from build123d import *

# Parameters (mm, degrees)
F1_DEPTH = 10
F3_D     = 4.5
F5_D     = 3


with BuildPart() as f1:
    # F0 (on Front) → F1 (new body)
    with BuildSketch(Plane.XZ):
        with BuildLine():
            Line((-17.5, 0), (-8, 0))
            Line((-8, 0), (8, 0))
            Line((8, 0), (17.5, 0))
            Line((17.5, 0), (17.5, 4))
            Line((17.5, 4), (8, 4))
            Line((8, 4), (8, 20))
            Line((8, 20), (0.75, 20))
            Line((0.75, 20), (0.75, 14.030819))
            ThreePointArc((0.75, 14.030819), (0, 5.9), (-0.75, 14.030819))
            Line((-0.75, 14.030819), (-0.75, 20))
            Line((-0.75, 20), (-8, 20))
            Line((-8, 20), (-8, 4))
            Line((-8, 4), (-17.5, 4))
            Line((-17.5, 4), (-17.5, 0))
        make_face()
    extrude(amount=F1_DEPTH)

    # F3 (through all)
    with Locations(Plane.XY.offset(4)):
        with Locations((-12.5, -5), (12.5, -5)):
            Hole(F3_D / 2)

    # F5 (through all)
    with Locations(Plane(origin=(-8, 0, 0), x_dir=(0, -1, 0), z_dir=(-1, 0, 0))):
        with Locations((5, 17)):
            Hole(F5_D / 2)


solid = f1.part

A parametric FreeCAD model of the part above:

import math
import FreeCAD as App
import Part
import Sketcher

V = App.Vector
Q = App.Units.Quantity

doc = App.newDocument("Part")
body = doc.addObject("PartDesign::Body", "Body")

# Sketch on XZ plane
sketch1 = doc.addObject("Sketcher::SketchObject", "Sketch")
body.addObject(sketch1)
sketch1.AttachmentSupport = (doc.XZ_Plane, [""])
sketch1.MapMode = "FlatFace"
sketch1.addGeometry([
    Part.LineSegment(V(-17.5, 0, 0), V(17.5, 0, 0)),  # 0
    Part.LineSegment(V(17.5, 0, 0), V(17.5, 4, 0)),  # 1
    Part.LineSegment(V(17.5, 4, 0), V(8, 4, 0)),  # 2
    Part.LineSegment(V(8, 4, 0), V(8, 20, 0)),  # 3
    Part.LineSegment(V(8, 20, 0), V(0.75, 20, 0)),  # 4
    Part.LineSegment(V(0.75, 20, 0), V(0.75, 14.030819, 0)),  # 5
    Part.ArcOfCircle(Part.Circle(V(0, 10, 0), V(0, 0, 1), 4.1), math.radians(100.540286), math.radians(439.459714)),  # 6
    Part.LineSegment(V(-0.75, 14.030819, 0), V(-0.75, 20, 0)),  # 7
    Part.LineSegment(V(-0.75, 20, 0), V(-8, 20, 0)),  # 8
    Part.LineSegment(V(-8, 20, 0), V(-8, 4, 0)),  # 9
    Part.LineSegment(V(-8, 4, 0), V(-17.5, 4, 0)),  # 10
    Part.LineSegment(V(-17.5, 4, 0), V(-17.5, 0, 0)),  # 11
], False)
sketch1.addConstraint([
    Sketcher.Constraint("Coincident", 0, 2, 1, 1),
    Sketcher.Constraint("Coincident", 1, 2, 2, 1),
    Sketcher.Constraint("Coincident", 2, 2, 3, 1),
    Sketcher.Constraint("Coincident", 3, 2, 4, 1),
    Sketcher.Constraint("Coincident", 4, 2, 5, 1),
    Sketcher.Constraint("Coincident", 5, 2, 6, 2),
    Sketcher.Constraint("Coincident", 6, 1, 7, 1),
    Sketcher.Constraint("Coincident", 7, 2, 8, 1),
    Sketcher.Constraint("Coincident", 8, 2, 9, 1),
    Sketcher.Constraint("Coincident", 9, 2, 10, 1),
    Sketcher.Constraint("Coincident", 10, 2, 11, 1),
    Sketcher.Constraint("Coincident", 11, 2, 0, 1),
    Sketcher.Constraint("Horizontal", 0),
    Sketcher.Constraint("Vertical", 1),
    Sketcher.Constraint("Horizontal", 2),
    Sketcher.Constraint("Vertical", 3),
    Sketcher.Constraint("Horizontal", 4),
    Sketcher.Constraint("Vertical", 5),
    Sketcher.Constraint("Vertical", 7),
    Sketcher.Constraint("Horizontal", 8),
    Sketcher.Constraint("Vertical", 9),
    Sketcher.Constraint("Horizontal", 10),
    Sketcher.Constraint("Vertical", 11),
    Sketcher.Constraint("Symmetric", 0, 2, 11, 2, -1, 1),
    Sketcher.Constraint("Symmetric", 5, 2, 6, 1, -2),
    Sketcher.Constraint("Symmetric", 3, 2, 8, 2, -2),
    Sketcher.Constraint("Horizontal", 2, 2, 9, 2),
    Sketcher.Constraint("Radius", 6, Q("4.1 mm")),
    Sketcher.Constraint("DistanceX", 0, 1, 0, 2, Q("35 mm")),
    Sketcher.Constraint("DistanceY", 1, 1, 1, 2, Q("4 mm")),
    Sketcher.Constraint("DistanceY", 3, 1, 3, 2, Q("16 mm")),
    Sketcher.Constraint("DistanceX", 2, 2, 2, 1, Q("9.5 mm")),
    Sketcher.Constraint("DistanceY", -1, 1, 6, 3, Q("10 mm")),
    Sketcher.Constraint("DistanceX", 4, 2, 4, 1, Q("7.25 mm")),
])
pad1 = doc.addObject("PartDesign::Pad", "Pad")
body.addObject(pad1)
pad1.Profile = sketch1
pad1.Length = 10

# Sketch on XY plane
sketch2 = doc.addObject("Sketcher::SketchObject", "Sketch001")
body.addObject(sketch2)
sketch2.AttachmentSupport = (doc.XY_Plane, [""])
sketch2.MapMode = "FlatFace"
sketch2.AttachmentOffset = App.Placement(V(0, 0, 4), App.Rotation())
sketch2.addGeometry([
    Part.Circle(V(-12.5, -5, 0), V(0, 0, 1), 2.25),
    Part.Circle(V(12.5, -5, 0), V(0, 0, 1), 2.25),
], False)
sketch2.addConstraint([
    Sketcher.Constraint("Equal", 0, 1),
    Sketcher.Constraint("Symmetric", 0, 3, 1, 3, -2),
    Sketcher.Constraint("Diameter", 0, Q("4.5 mm")),
    Sketcher.Constraint("DistanceY", 0, 3, -1, 1, Q("5 mm")),
    Sketcher.Constraint("DistanceX", 0, 3, 1, 3, Q("25 mm")),
])
doc.recompute()
hole = doc.addObject("PartDesign::Hole", "Hole")
body.addObject(hole)
hole.Profile = sketch2
hole.ThreadType = "None"
hole.Diameter = 4.5
hole.DepthType = "ThroughAll"

# Sketch on YZ plane
sketch3 = doc.addObject("Sketcher::SketchObject", "Sketch002")
body.addObject(sketch3)
sketch3.AttachmentSupport = (doc.YZ_Plane, [""])
sketch3.MapMode = "FlatFace"
sketch3.AttachmentOffset = App.Placement(V(0, 0, -8), App.Rotation())
sketch3.addGeometry(Part.Circle(V(-5, 17, 0), V(0, 0, 1), 1.5), False)
sketch3.addConstraint([
    Sketcher.Constraint("Diameter", 0, Q("3 mm")),
    Sketcher.Constraint("DistanceX", 0, 3, -1, 1, Q("5 mm")),
    Sketcher.Constraint("DistanceY", -1, 1, 0, 3, Q("17 mm")),
])
doc.recompute()
hole2 = doc.addObject("PartDesign::Hole", "Hole001")
body.addObject(hole2)
hole2.Profile = sketch3
hole2.ThreadType = "None"
hole2.Diameter = 3
hole2.DepthType = "ThroughAll"
hole2.Reversed = True

doc.recompute()
